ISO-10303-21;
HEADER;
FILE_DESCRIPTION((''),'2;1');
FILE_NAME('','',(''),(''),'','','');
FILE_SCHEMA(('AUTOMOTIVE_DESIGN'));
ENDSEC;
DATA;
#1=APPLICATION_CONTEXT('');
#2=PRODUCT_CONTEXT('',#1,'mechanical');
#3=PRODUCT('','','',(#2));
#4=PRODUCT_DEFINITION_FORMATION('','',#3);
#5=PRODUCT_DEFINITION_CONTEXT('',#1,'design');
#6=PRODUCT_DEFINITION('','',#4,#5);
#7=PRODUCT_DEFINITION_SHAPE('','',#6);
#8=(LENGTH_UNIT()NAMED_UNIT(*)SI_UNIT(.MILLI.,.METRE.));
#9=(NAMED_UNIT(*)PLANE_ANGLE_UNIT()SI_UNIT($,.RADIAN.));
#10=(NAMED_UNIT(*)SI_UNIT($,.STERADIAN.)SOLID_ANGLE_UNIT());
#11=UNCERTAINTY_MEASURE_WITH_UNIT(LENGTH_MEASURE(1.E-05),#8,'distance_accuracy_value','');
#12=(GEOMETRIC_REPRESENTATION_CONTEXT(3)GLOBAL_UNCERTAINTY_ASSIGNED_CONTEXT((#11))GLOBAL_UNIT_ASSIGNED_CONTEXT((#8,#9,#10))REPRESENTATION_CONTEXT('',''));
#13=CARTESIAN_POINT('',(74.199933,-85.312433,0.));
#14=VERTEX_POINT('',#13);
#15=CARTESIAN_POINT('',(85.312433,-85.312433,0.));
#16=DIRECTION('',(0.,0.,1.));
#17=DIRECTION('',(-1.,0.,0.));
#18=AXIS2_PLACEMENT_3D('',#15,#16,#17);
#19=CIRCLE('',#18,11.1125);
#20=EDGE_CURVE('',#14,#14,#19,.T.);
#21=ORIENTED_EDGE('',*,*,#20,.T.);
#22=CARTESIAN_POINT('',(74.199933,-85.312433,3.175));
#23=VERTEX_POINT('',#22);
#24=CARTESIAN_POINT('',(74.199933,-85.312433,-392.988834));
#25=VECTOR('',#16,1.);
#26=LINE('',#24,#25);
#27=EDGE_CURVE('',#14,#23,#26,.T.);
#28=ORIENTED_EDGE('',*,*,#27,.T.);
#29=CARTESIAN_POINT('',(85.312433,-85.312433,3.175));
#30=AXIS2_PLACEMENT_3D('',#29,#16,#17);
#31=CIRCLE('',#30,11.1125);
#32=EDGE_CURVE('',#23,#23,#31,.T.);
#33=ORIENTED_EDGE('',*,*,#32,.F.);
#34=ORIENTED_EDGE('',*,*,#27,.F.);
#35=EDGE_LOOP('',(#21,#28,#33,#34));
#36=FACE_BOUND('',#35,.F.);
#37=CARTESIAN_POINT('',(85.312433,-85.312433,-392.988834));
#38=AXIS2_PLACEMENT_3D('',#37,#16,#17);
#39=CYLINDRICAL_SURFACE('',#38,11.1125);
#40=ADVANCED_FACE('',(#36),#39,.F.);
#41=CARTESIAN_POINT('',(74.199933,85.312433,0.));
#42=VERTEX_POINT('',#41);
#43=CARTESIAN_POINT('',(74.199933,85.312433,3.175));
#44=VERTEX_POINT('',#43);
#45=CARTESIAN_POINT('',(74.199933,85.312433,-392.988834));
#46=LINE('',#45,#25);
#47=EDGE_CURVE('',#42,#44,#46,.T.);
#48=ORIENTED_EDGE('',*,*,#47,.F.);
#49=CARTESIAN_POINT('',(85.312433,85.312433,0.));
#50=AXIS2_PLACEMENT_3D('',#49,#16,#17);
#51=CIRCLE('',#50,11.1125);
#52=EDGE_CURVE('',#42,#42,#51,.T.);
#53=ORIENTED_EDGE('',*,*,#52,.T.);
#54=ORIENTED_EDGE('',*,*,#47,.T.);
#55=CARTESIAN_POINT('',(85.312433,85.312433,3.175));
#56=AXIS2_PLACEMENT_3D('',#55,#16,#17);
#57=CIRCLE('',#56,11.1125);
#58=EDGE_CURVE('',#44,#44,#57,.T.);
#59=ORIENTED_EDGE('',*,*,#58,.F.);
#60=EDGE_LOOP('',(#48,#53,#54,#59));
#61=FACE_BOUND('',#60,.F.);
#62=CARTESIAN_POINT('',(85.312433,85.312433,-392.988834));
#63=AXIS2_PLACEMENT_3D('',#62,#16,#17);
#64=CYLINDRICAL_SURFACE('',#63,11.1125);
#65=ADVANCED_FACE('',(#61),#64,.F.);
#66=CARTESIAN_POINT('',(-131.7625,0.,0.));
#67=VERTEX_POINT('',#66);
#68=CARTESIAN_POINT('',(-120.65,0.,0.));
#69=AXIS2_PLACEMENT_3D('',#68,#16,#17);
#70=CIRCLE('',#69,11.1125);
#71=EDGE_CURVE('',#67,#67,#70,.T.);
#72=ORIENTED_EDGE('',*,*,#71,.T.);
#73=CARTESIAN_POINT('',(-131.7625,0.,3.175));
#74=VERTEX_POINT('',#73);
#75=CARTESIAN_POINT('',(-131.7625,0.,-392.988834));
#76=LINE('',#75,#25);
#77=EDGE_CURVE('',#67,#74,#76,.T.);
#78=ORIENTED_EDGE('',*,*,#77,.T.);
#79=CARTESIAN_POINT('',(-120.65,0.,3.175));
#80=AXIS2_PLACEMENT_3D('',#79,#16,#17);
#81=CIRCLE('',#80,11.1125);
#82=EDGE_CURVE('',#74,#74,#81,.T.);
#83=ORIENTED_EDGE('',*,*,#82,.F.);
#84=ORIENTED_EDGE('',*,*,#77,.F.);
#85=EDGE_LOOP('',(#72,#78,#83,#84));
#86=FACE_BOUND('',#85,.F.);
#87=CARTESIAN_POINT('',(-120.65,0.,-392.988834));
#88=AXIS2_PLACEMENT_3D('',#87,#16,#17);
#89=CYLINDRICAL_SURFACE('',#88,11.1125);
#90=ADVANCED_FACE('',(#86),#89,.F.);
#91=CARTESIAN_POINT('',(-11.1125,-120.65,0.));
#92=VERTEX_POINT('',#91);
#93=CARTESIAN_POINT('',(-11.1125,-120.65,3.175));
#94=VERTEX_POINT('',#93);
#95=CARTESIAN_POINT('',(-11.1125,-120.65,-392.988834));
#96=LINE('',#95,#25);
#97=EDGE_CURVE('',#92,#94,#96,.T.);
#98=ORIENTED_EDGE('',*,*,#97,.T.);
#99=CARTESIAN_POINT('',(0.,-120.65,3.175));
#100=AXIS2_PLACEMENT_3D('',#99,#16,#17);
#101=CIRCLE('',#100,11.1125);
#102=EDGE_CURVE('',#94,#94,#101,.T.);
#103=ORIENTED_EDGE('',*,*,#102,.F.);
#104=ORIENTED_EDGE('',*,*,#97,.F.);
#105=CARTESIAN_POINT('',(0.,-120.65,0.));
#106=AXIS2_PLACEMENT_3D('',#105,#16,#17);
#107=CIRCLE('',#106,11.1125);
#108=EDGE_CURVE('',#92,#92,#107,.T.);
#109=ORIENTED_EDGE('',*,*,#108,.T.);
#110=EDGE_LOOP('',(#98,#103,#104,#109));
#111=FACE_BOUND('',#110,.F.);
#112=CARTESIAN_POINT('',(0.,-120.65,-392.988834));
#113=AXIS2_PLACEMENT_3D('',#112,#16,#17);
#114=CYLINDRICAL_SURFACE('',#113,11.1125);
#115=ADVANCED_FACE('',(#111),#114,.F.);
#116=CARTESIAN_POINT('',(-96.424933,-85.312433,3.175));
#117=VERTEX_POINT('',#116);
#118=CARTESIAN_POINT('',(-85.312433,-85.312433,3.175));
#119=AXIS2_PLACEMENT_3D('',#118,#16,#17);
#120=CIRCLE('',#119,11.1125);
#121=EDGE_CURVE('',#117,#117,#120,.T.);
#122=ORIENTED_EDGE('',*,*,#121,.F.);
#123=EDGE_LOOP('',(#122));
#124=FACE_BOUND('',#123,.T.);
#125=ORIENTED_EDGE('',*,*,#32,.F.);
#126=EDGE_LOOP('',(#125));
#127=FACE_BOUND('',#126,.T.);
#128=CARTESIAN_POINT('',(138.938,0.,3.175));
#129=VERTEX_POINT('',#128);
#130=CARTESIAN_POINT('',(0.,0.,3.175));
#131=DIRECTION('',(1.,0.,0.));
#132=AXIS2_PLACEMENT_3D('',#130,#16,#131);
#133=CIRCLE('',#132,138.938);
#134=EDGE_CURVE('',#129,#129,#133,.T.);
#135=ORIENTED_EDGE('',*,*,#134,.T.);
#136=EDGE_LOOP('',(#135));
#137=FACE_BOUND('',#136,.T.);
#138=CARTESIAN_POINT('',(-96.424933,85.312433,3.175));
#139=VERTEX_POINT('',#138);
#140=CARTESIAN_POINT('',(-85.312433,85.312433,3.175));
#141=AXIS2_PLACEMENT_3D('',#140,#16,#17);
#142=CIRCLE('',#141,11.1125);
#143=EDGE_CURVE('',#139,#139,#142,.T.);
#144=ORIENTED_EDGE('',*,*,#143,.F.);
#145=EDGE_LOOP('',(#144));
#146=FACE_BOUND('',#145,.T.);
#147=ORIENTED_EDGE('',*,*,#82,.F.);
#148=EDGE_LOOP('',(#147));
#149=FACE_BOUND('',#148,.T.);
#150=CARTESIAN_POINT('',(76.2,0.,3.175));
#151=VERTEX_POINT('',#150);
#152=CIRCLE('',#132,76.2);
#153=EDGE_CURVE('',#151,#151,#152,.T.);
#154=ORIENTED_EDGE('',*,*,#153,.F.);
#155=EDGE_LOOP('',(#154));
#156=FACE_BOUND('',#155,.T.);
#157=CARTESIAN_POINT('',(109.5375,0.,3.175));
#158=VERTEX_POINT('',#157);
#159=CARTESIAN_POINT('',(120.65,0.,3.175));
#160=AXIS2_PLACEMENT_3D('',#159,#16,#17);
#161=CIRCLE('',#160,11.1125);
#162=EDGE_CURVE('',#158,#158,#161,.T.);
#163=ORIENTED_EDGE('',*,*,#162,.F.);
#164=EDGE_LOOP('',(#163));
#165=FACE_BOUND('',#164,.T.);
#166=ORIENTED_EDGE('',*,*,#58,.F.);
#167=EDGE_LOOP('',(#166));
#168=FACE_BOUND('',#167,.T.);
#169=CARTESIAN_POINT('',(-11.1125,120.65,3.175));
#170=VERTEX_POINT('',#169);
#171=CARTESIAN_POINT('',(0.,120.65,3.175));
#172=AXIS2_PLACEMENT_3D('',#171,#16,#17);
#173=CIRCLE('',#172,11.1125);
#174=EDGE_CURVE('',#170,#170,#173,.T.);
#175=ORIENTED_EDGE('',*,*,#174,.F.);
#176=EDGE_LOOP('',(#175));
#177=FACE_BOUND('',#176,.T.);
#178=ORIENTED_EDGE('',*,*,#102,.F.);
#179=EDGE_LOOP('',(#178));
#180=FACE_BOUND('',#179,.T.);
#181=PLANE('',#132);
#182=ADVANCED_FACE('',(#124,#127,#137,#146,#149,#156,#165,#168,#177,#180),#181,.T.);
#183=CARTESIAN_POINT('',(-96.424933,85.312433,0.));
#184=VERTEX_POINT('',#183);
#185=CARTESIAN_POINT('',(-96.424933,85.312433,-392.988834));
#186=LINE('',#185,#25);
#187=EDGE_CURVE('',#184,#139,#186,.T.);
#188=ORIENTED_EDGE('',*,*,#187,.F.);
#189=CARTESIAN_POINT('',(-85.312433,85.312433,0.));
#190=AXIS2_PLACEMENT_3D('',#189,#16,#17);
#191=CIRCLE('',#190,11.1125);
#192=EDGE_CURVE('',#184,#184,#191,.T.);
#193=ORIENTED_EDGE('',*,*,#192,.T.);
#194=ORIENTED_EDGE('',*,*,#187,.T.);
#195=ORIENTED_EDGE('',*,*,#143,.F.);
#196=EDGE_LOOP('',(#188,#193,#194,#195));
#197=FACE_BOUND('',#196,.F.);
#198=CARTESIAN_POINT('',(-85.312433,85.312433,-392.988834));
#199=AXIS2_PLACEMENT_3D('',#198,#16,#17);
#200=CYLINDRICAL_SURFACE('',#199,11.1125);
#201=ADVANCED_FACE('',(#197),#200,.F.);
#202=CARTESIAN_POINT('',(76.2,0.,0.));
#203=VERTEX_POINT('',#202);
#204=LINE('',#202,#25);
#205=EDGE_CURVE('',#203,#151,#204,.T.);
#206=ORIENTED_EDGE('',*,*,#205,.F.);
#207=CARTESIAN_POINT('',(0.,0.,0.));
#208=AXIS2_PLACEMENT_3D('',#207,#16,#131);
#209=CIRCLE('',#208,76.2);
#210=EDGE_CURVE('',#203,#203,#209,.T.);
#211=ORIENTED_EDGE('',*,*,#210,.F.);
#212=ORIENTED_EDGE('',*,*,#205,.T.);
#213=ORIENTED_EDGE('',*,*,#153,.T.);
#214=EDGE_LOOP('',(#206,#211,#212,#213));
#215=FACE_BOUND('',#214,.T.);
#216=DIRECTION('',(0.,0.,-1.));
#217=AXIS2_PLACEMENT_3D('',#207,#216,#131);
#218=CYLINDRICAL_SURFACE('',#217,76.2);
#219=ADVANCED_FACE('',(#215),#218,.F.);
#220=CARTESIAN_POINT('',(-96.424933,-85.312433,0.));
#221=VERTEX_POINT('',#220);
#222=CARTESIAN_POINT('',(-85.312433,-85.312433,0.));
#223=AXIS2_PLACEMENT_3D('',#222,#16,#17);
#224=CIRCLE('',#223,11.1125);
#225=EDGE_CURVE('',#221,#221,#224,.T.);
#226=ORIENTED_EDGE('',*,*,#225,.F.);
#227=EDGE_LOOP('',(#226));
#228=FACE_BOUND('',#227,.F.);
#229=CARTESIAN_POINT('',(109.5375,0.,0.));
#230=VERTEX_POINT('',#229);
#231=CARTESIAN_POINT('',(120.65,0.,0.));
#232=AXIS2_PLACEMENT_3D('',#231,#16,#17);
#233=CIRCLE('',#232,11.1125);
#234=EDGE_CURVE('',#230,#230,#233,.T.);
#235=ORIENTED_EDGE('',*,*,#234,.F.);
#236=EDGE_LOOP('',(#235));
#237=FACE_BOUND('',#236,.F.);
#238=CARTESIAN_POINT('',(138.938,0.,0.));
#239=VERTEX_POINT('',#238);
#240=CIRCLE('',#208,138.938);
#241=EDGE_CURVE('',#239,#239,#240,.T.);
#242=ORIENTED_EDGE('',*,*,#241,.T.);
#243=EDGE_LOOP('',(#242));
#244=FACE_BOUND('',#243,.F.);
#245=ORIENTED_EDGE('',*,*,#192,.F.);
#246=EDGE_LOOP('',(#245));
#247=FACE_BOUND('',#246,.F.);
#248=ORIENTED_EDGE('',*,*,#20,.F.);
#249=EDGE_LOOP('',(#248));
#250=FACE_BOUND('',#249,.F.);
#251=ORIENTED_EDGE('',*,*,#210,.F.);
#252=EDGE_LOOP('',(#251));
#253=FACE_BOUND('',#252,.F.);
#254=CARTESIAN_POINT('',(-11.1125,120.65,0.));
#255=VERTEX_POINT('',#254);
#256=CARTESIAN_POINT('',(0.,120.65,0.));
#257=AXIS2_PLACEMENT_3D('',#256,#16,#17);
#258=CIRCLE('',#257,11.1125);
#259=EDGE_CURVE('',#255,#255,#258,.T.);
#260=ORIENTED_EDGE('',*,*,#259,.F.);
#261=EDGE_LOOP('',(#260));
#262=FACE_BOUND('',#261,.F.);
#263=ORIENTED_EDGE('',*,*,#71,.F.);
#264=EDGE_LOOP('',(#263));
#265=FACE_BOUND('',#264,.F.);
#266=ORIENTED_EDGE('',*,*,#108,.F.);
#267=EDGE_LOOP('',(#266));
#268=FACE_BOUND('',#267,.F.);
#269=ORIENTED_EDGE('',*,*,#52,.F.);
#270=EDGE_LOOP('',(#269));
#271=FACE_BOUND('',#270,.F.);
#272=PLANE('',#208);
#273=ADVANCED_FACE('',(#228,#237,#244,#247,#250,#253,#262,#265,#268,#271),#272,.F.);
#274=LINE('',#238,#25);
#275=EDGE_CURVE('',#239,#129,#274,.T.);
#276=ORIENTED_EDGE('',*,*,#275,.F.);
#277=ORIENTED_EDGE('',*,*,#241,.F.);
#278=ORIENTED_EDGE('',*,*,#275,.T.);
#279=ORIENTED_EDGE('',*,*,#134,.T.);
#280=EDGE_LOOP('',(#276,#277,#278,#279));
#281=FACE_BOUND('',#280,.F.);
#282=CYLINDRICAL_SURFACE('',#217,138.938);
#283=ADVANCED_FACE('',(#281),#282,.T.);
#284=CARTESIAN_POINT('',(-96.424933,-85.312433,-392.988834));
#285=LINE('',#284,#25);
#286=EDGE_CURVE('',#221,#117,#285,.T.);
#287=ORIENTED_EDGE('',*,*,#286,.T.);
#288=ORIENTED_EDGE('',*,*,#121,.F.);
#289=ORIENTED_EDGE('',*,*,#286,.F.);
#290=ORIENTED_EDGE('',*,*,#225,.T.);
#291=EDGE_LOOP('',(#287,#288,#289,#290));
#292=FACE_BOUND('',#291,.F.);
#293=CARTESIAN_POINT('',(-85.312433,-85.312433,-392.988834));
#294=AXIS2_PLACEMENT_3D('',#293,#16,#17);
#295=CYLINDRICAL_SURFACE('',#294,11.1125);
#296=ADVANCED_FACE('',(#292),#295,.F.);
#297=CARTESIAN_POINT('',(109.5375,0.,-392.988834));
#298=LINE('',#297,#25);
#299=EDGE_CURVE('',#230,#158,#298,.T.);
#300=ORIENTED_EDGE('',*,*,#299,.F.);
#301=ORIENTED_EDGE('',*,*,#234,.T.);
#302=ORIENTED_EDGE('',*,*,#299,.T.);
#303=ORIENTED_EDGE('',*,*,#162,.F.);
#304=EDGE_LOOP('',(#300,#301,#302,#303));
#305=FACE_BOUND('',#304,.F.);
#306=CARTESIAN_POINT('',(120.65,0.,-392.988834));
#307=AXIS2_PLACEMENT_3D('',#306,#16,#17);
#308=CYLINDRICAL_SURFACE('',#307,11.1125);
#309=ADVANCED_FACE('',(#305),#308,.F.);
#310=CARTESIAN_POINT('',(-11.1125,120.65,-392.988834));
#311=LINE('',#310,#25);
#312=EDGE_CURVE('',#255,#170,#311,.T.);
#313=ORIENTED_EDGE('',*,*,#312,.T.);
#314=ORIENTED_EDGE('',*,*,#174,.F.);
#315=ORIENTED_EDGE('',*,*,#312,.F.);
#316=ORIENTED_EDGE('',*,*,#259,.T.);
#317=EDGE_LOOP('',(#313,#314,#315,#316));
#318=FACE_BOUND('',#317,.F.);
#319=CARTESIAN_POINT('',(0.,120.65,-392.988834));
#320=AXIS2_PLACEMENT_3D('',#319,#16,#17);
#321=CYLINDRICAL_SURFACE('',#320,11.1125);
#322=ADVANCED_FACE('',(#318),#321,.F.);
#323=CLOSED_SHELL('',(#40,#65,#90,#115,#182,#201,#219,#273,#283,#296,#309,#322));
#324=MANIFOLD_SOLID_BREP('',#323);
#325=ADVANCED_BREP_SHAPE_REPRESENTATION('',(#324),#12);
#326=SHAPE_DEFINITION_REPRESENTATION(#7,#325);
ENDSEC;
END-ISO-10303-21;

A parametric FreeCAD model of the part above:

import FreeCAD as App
import Part
import Sketcher
Q = App.Units.Quantity

doc = App.newDocument("Part")
body = doc.addObject("PartDesign::Body", "Body")

# Sketch on XY plane
sketch1 = body.newObject("Sketcher::SketchObject", "Sketch")
sketch1.AttachmentSupport = (doc.getObject("XY_Plane"), [""])
sketch1.MapMode = "FlatFace"
sketch1.addGeometry([
    Part.Circle(App.Vector(0, 0, 0), App.Vector(0, 0, 1), 139),
    Part.Circle(App.Vector(0, 0, 0), App.Vector(0, 0, 1), 76),
], False)
sketch1.addConstraint([
    Sketcher.Constraint("Coincident", 0, 3, -1, 1),
    Sketcher.Constraint("Coincident", 1, 3, -1, 1),
    Sketcher.Constraint("Diameter", 1, Q("6 in")),
    Sketcher.Constraint("Diameter", 0, Q("10.94 in")),
])
pad1 = body.newObject("PartDesign::Pad", "Pad")
pad1.Profile = sketch1
pad1.Length = Q("0.125 in")

# Sketch on XY plane
sketch2 = body.newObject("Sketcher::SketchObject", "Sketch001")
sketch2.AttachmentSupport = (doc.getObject("XY_Plane"), [""])
sketch2.MapMode = "FlatFace"
sketch2.addGeometry([
    Part.Circle(App.Vector(-85, -85, 0), App.Vector(0, 0, 1), 11),  # 0
    Part.Circle(App.Vector(-121, 0, 0), App.Vector(0, 0, 1), 11),  # 1
    Part.Circle(App.Vector(-85, 85, 0), App.Vector(0, 0, 1), 11),  # 2
    Part.Circle(App.Vector(0, 121, 0), App.Vector(0, 0, 1), 11),  # 3
    Part.Circle(App.Vector(85, 85, 0), App.Vector(0, 0, 1), 11),  # 4
    Part.Circle(App.Vector(121, 0, 0), App.Vector(0, 0, 1), 11),  # 5
    Part.Circle(App.Vector(85, -85, 0), App.Vector(0, 0, 1), 11),  # 6
    Part.Circle(App.Vector(0, -121, 0), App.Vector(0, 0, 1), 11),  # 7
], False)
sketch2.addConstraint([
    Sketcher.Constraint("Equal", 0, 1),
    Sketcher.Constraint("Equal", 1, 2),
    Sketcher.Constraint("Equal", 2, 3),
    Sketcher.Constraint("Equal", 3, 4),
    Sketcher.Constraint("Equal", 4, 5),
    Sketcher.Constraint("Equal", 5, 6),
    Sketcher.Constraint("Equal", 6, 7),
    Sketcher.Constraint("Symmetric", 0, 3, 4, 3, -1, 1),
    Sketcher.Constraint("Symmetric", 1, 3, 5, 3, -1, 1),
    Sketcher.Constraint("Symmetric", 2, 3, 6, 3, -1, 1),
    Sketcher.Constraint("Symmetric", 3, 3, 7, 3, -1, 1),
    Sketcher.Constraint("Symmetric", 2, 3, 4, 3, -2),
    Sketcher.Constraint("PointOnObject", 1, 3, -1),
    Sketcher.Constraint("PointOnObject", 3, 3, -2),
    Sketcher.Constraint("Diameter", 0, Q("0.875 in")),
    Sketcher.Constraint("DistanceX", 1, 3, 5, 3, Q("9.5 in")),
    Sketcher.Constraint("DistanceY", -1, 1, 3, 3, Q("4.75 in")),
    Sketcher.Constraint("DistanceX", 0, 3, -1, 1, Q("85.312433 mm")),
    Sketcher.Constraint("DistanceY", 0, 3, -1, 1, Q("85.312433 mm")),
])
doc.recompute()
hole = body.newObject("PartDesign::Hole", "Hole")
hole.Profile = sketch2
hole.ThreadType = "None"
hole.Diameter = Q("0.875 in")
hole.DepthType = "ThroughAll"
hole.Reversed = True

doc.recompute()
